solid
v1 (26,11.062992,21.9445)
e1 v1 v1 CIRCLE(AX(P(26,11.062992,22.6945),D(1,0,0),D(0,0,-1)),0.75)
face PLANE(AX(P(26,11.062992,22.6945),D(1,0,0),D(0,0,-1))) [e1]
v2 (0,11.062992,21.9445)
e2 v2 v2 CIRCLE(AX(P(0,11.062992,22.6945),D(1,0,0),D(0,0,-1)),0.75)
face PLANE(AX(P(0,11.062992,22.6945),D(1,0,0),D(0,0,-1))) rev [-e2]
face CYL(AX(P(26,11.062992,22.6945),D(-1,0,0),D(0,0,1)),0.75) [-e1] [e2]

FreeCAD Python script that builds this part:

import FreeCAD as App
import Part
import Sketcher

doc = App.newDocument("Part")
body = doc.addObject("PartDesign::Body", "Body")

sketch1 = body.newObject("Sketcher::SketchObject", "Sketch")
sketch1.AttachmentSupport = (doc.getObject("YZ_Plane"), [""])
sketch1.MapMode = "FlatFace"
sketch1.addGeometry(Part.Circle(App.Vector(11.1, 22.7, 0), App.Vector(0, 0, 1), 0.8), False)
sketch1.addConstraint(Sketcher.Constraint("Diameter", 0, 1.5))
sketch1.addConstraint(Sketcher.Constraint("DistanceY", -1, 1, 0, 3, 22.6945))
sketch1.addConstraint(Sketcher.Constraint("DistanceX", -1, 1, 0, 3, 11.062992))
pad1 = body.newObject("PartDesign::Pad", "Pad")
pad1.Profile = sketch1
pad1.Length = 26

doc.recompute()
